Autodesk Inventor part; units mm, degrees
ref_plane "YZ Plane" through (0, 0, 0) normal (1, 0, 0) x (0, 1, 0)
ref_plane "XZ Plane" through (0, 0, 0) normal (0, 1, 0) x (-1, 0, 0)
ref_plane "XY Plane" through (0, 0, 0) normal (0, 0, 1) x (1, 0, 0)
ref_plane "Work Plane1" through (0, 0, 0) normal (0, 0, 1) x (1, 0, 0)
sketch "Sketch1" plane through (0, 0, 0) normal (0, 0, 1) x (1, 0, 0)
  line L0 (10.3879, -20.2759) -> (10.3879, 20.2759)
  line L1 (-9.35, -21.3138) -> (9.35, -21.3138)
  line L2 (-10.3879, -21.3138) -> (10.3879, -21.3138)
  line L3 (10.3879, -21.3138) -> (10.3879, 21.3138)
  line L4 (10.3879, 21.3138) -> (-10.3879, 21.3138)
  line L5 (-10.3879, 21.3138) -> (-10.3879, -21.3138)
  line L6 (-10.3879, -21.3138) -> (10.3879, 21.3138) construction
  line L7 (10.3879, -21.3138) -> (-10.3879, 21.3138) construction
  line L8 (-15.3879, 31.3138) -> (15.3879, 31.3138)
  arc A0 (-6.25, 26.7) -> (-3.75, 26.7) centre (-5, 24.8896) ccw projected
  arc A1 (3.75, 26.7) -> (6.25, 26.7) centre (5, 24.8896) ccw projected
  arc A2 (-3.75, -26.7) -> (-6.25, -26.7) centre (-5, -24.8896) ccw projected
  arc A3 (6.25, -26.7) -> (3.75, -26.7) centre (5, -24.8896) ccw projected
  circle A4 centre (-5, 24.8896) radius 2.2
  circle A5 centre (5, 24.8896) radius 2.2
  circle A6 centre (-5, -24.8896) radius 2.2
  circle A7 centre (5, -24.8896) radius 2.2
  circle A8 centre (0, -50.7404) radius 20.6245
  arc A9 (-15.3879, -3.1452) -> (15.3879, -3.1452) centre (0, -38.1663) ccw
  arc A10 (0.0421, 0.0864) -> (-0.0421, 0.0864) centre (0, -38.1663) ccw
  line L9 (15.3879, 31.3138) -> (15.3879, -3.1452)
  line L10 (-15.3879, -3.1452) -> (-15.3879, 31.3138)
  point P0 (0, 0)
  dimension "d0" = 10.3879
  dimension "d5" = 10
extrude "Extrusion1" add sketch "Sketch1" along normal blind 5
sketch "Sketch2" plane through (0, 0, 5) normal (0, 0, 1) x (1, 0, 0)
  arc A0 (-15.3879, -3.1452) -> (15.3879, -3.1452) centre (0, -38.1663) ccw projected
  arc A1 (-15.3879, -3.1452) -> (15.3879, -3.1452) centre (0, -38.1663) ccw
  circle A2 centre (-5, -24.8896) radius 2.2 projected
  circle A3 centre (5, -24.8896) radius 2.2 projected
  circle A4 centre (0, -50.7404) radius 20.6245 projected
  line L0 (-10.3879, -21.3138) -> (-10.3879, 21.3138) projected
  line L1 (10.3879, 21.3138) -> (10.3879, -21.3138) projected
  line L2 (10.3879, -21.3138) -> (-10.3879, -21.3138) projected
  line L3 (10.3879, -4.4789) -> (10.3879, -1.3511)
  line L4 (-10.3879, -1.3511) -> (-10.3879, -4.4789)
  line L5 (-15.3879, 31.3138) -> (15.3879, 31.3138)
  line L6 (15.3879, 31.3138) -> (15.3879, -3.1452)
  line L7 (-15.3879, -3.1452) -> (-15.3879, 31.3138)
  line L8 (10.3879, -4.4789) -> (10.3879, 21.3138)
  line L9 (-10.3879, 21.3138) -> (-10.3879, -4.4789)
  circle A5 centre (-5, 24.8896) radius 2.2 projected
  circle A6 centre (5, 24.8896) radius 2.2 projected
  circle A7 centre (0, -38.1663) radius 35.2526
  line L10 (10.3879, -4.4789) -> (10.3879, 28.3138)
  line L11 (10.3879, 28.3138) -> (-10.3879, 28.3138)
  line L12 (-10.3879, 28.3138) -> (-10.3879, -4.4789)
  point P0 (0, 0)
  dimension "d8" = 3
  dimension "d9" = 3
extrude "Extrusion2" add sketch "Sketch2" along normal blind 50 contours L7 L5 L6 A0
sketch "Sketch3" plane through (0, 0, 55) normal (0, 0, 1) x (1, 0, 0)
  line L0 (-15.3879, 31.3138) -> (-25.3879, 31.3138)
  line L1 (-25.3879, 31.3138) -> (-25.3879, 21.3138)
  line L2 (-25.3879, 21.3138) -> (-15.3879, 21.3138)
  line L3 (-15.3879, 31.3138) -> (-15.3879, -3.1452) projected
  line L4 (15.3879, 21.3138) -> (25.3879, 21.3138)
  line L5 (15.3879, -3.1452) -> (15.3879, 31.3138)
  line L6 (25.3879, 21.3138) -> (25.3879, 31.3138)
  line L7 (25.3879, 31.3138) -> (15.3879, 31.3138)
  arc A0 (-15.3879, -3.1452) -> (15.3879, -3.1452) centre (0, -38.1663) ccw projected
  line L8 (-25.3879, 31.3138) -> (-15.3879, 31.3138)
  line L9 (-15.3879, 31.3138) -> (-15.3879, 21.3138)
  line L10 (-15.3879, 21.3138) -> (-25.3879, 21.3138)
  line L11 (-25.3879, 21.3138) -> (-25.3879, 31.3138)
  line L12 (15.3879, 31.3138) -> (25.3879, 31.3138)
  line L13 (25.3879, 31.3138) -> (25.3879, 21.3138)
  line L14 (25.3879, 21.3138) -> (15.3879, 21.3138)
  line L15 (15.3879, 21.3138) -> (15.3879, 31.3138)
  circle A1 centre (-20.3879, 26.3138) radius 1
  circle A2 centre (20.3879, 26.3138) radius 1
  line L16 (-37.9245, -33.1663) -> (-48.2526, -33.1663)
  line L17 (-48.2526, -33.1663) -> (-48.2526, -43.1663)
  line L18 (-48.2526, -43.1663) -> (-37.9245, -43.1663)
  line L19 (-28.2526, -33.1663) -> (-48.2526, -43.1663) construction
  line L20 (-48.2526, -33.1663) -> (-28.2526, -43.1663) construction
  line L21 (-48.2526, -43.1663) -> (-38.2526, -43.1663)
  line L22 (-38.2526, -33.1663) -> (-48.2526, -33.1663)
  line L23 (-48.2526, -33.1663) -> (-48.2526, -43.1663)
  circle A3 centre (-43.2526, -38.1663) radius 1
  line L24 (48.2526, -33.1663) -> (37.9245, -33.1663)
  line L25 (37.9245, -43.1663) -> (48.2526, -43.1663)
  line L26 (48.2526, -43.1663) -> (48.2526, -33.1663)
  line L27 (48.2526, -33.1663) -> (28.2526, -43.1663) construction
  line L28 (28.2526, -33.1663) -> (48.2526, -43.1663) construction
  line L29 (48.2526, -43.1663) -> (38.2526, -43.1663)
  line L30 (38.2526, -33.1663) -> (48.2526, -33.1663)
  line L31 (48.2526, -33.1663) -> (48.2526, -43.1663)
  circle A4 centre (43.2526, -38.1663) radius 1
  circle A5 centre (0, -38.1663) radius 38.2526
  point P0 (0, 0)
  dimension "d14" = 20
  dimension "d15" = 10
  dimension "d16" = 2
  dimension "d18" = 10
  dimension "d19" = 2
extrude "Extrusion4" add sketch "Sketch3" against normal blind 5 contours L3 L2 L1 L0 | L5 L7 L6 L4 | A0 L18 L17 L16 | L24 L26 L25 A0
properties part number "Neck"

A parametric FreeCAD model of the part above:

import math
import FreeCAD as App
import Part
import Sketcher


def add_polygon(sketch, points):
    """Adds a closed chain of lines whose ends are joined by coincident constraints."""
    first, n = sketch.GeometryCount, len(points)
    for a, b in zip(points, points[1:] + points[:1]):
        sketch.addGeometry(Part.LineSegment(App.Vector(*a, 0), App.Vector(*b, 0)), False)
    for i in range(n):
        sketch.addConstraint(Sketcher.Constraint("Coincident", first + i, 2, first + (i + 1) % n, 1))

doc = App.newDocument("Part")
body = doc.addObject("PartDesign::Body", "Body")

# Sketch on XY plane
sketch1 = body.newObject("Sketcher::SketchObject", "Sketch")
sketch1.AttachmentSupport = (doc.getObject("XY_Plane"), [""])
sketch1.MapMode = "FlatFace"
sketch1.addGeometry(Part.LineSegment(App.Vector(15.4, 31.3, 0), App.Vector(-15.4, 31.3, 0)), False)  # 0
sketch1.addGeometry(Part.LineSegment(App.Vector(-15.4, 31.3, 0), App.Vector(-15.4, -3.1, 0)), False)  # 1
sketch1.addGeometry(Part.ArcOfCircle(Part.Circle(App.Vector(0, -38.2, 0), App.Vector(0, 0, 1), 38.3), math.radians(114), math.radians(426)), False)  # 2
sketch1.addGeometry(Part.LineSegment(App.Vector(15.4, -3.1, 0), App.Vector(15.4, 31.3, 0)), False)  # 3
sketch1.addGeometry(Part.Circle(App.Vector(-5, -24.9, 0), App.Vector(0, 0, 1), 2.2), False)  # 4
sketch1.addGeometry(Part.Circle(App.Vector(0, -50.7, 0), App.Vector(0, 0, 1), 20.6), False)  # 5
sketch1.addGeometry(Part.Circle(App.Vector(5, -24.9, 0), App.Vector(0, 0, 1), 2.2), False)  # 6
sketch1.addGeometry(Part.Circle(App.Vector(-5, 24.9, 0), App.Vector(0, 0, 1), 2.2), False)  # 7
add_polygon(sketch1, [(10.4, 21.3), (10.4, -21.3), (-10.4, -21.3), (-10.4, 21.3)])  # lines 8-11
sketch1.addGeometry(Part.Circle(App.Vector(5, 24.9, 0), App.Vector(0, 0, 1), 2.2), False)  # 12
sketch1.addConstraint([
    Sketcher.Constraint("Coincident", 0, 2, 1, 1),
    Sketcher.Constraint("Coincident", 1, 2, 2, 1),
    Sketcher.Constraint("Coincident", 2, 2, 3, 1),
    Sketcher.Constraint("Coincident", 3, 2, 0, 1),
    Sketcher.Constraint("Horizontal", 0),
    Sketcher.Constraint("Vertical", 1),
    Sketcher.Constraint("Vertical", 3),
    Sketcher.Constraint("Vertical", 8),
    Sketcher.Constraint("Horizontal", 9),
    Sketcher.Constraint("Vertical", 10),
    Sketcher.Constraint("Horizontal", 11),
    Sketcher.Constraint("Equal", 4, 6),
    Sketcher.Constraint("Equal", 6, 7),
    Sketcher.Constraint("Equal", 7, 12),
    Sketcher.Constraint("Symmetric", 6, 3, 7, 3, -1, 1),
    Sketcher.Constraint("Symmetric", 4, 3, 12, 3, -1, 1),
    Sketcher.Constraint("Symmetric", 8, 2, 10, 2, -1, 1),
    Sketcher.Constraint("Symmetric", 4, 3, 6, 3, -2),
    Sketcher.Constraint("Symmetric", 1, 2, 2, 2, -2),
    Sketcher.Constraint("PointOnObject", 5, 3, -2),
    Sketcher.Constraint("DistanceX", 4, 3, 6, 3, 10.0),
    Sketcher.Constraint("DistanceY", 10, 2, 0, 2, 10.0),
    Sketcher.Constraint("Diameter", 4, 4.4),
    Sketcher.Constraint("Diameter", 5, 41.249),
    Sketcher.Constraint("DistanceX", -1, 1, 8, 2, 10.388),
    Sketcher.Constraint("DistanceX", 0, 2, 7, 3, 10.388),
    Sketcher.Constraint("Radius", 2, 38.2526),
    Sketcher.Constraint("DistanceY", 1, 2, 1, 1, 34.459),
    Sketcher.Constraint("DistanceY", 5, 3, 7, 3, 75.63),
    Sketcher.Constraint("DistanceY", 8, 2, 8, 1, 42.6276),
    Sketcher.Constraint("DistanceY", 5, 3, 2, 3, 12.574),
])
pad1 = body.newObject("PartDesign::Pad", "Pad")
pad1.Profile = sketch1
pad1.Length = 5

# Sketch on XY plane
sketch2 = body.newObject("Sketcher::SketchObject", "Sketch001")
sketch2.AttachmentSupport = (doc.getObject("XY_Plane"), [""])
sketch2.MapMode = "FlatFace"
sketch2.AttachmentOffset = App.Placement(App.Vector(0, 0, 5), App.Rotation())
sketch2.addGeometry([
    Part.LineSegment(App.Vector(-15, 31, 0), App.Vector(-15, -3, 0)),  # 0
    Part.ArcOfCircle(Part.Circle(App.Vector(0, -38, 0), App.Vector(0, 0, 1), 38), math.radians(114), math.radians(426)),  # 1
    Part.LineSegment(App.Vector(15, -3, 0), App.Vector(15, 31, 0)),  # 2
    Part.LineSegment(App.Vector(15, 31, 0), App.Vector(-15, 31, 0)),  # 3
    Part.ArcOfCircle(Part.Circle(App.Vector(0, -38, 0), App.Vector(0, 0, 1), 35), math.radians(107), math.radians(433)),  # 4
    Part.LineSegment(App.Vector(-10, -4, 0), App.Vector(-10, 28, 0)),  # 5
    Part.LineSegment(App.Vector(-10, 28, 0), App.Vector(10, 28, 0)),  # 6
    Part.LineSegment(App.Vector(10, 28, 0), App.Vector(10, -4, 0)),  # 7
], False)
sketch2.addConstraint([
    Sketcher.Constraint("Coincident", 0, 2, 1, 1),
    Sketcher.Constraint("Coincident", 1, 2, 2, 1),
    Sketcher.Constraint("Coincident", 2, 2, 3, 1),
    Sketcher.Constraint("Coincident", 3, 2, 0, 1),
    Sketcher.Constraint("Coincident", 4, 1, 5, 1),
    Sketcher.Constraint("Coincident", 5, 2, 6, 1),
    Sketcher.Constraint("Coincident", 6, 2, 7, 1),
    Sketcher.Constraint("Coincident", 7, 2, 4, 2),
    Sketcher.Constraint("Vertical", 0),
    Sketcher.Constraint("Vertical", 2),
    Sketcher.Constraint("Horizontal", 3),
    Sketcher.Constraint("Vertical", 5),
    Sketcher.Constraint("Horizontal", 6),
    Sketcher.Constraint("Vertical", 7),
    Sketcher.Constraint("Coincident", 4, 3, 1, 3),
    Sketcher.Constraint("Symmetric", 0, 2, 1, 2, -2),
    Sketcher.Constraint("Horizontal", 4, 1, 7, 2),
    Sketcher.Constraint("DistanceY", 5, 2, 3, 2, 3.0),
    Sketcher.Constraint("DistanceX", 0, 2, 4, 1, 5.0),
    Sketcher.Constraint("Radius", 1, 38.2526),
    Sketcher.Constraint("Radius", 4, 35.2526),
    Sketcher.Constraint("DistanceY", 0, 2, 0, 1, 34.459),
    Sketcher.Constraint("DistanceY", 1, 3, 2, 2, 69.48),
    Sketcher.Constraint("DistanceY", 4, 1, -1, 1, 4.479),
])
pad2 = body.newObject("PartDesign::Pad", "Pad001")
pad2.Profile = sketch2
pad2.Length = 50

# Sketch on XY plane
sketch3 = body.newObject("Sketcher::SketchObject", "Sketch002")
sketch3.AttachmentSupport = (doc.getObject("XY_Plane"), [""])
sketch3.MapMode = "FlatFace"
sketch3.AttachmentOffset = App.Placement(App.Vector(0, 0, 55), App.Rotation())
add_polygon(sketch3, [(-15.4, 21.3), (-15.4, 31.3), (-25.4, 31.3), (-25.4, 21.3)])  # lines 0-3
sketch3.addGeometry(Part.Circle(App.Vector(-20.4, 26.3, 0), App.Vector(0, 0, 1), 1), False)  # 4
add_polygon(sketch3, [(15.4, 31.3), (15.4, 21.3), (25.4, 21.3), (25.4, 31.3)])  # lines 5-8
sketch3.addGeometry(Part.Circle(App.Vector(20.4, 26.3, 0), App.Vector(0, 0, 1), 1), False)  # 9
sketch3.addGeometry(Part.ArcOfCircle(Part.Circle(App.Vector(0, -38.2, 0), App.Vector(0, 0, 1), 38.3), math.radians(172.49), math.radians(187.51)), False)  # 10
sketch3.addGeometry(Part.LineSegment(App.Vector(-37.9, -33.2, 0), App.Vector(-48.3, -33.2, 0)), False)  # 11
sketch3.addGeometry(Part.LineSegment(App.Vector(-48.3, -33.2, 0), App.Vector(-48.3, -43.2, 0)), False)  # 12
sketch3.addGeometry(Part.LineSegment(App.Vector(-48.3, -43.2, 0), App.Vector(-37.9, -43.2, 0)), False)  # 13
sketch3.addGeometry(Part.Circle(App.Vector(-43.3, -38.2, 0), App.Vector(0, 0, 1), 1), False)  # 14
sketch3.addGeometry(Part.LineSegment(App.Vector(48.3, -33.2, 0), App.Vector(37.9, -33.2, 0)), False)  # 15
sketch3.addGeometry(Part.ArcOfCircle(Part.Circle(App.Vector(0, -38.2, 0), App.Vector(0, 0, 1), 38.3), math.radians(-7.51), math.radians(7.51)), False)  # 16
sketch3.addGeometry(Part.LineSegment(App.Vector(37.9, -43.2, 0), App.Vector(48.3, -43.2, 0)), False)  # 17
sketch3.addGeometry(Part.LineSegment(App.Vector(48.3, -43.2, 0), App.Vector(48.3, -33.2, 0)), False)  # 18
sketch3.addGeometry(Part.Circle(App.Vector(43.3, -38.2, 0), App.Vector(0, 0, 1), 1), False)  # 19
sketch3.addConstraint([
    Sketcher.Constraint("Coincident", 10, 1, 11, 1),
    Sketcher.Constraint("Coincident", 11, 2, 12, 1),
    Sketcher.Constraint("Coincident", 12, 2, 13, 1),
    Sketcher.Constraint("Coincident", 13, 2, 10, 2),
    Sketcher.Constraint("Coincident", 15, 2, 16, 2),
    Sketcher.Constraint("Coincident", 16, 1, 17, 1),
    Sketcher.Constraint("Coincident", 17, 2, 18, 1),
    Sketcher.Constraint("Coincident", 18, 2, 15, 1),
    Sketcher.Constraint("Vertical", 0),
    Sketcher.Constraint("Horizontal", 1),
    Sketcher.Constraint("Vertical", 2),
    Sketcher.Constraint("Horizontal", 3),
    Sketcher.Constraint("Vertical", 5),
    Sketcher.Constraint("Horizontal", 6),
    Sketcher.Constraint("Vertical", 7),
    Sketcher.Constraint("Horizontal", 8),
    Sketcher.Constraint("Horizontal", 11),
    Sketcher.Constraint("Vertical", 12),
    Sketcher.Constraint("Horizontal", 13),
    Sketcher.Constraint("Horizontal", 15),
    Sketcher.Constraint("Horizontal", 17),
    Sketcher.Constraint("Vertical", 18),
    Sketcher.Constraint("Coincident", 16, 3, 10, 3),
    Sketcher.Constraint("Equal", 4, 9),
    Sketcher.Constraint("Equal", 9, 14),
    Sketcher.Constraint("Equal", 10, 16),
    Sketcher.Constraint("Equal", 14, 19),
    Sketcher.Constraint("Symmetric", 4, 3, 9, 3, -2),
    Sketcher.Constraint("Symmetric", 14, 3, 19, 3, -2),
    Sketcher.Constraint("Symmetric", 3, 2, 5, 2, -2),
    Sketcher.Constraint("Symmetric", 1, 2, 7, 2, -2),
    Sketcher.Constraint("Symmetric", 10, 1, 15, 2, -2),
    Sketcher.Constraint("Symmetric", 12, 2, 17, 2, -2),
    Sketcher.Constraint("Horizontal", 10, 3, 14, 3),
    Sketcher.Constraint("Vertical", 10, 1, 13, 2),
    Sketcher.Constraint("Equal", 8, 0),
    Sketcher.Constraint("Equal", 7, 12),
    Sketcher.Constraint("Diameter", 4, 2.0),
    Sketcher.Constraint("DistanceX", 1, 2, 1, 1, 10.0),
    Sketcher.Constraint("DistanceX", 4, 3, 0, 2, 5.0),
    Sketcher.Constraint("DistanceY", 4, 3, 0, 2, 5.0),
    Sketcher.Constraint("DistanceX", 11, 2, 14, 3, 5.0),
    Sketcher.Constraint("Radius", 10, 38.2526),
    Sketcher.Constraint("DistanceX", 11, 2, 11, 1, 10.328),
    Sketcher.Constraint("DistanceY", 10, 3, 4, 3, 64.48),
    Sketcher.Constraint("DistanceX", 4, 3, -1, 1, 20.388),
    Sketcher.Constraint("DistanceY", -1, 1, 4, 3, 26.3138),
])
pad3 = body.newObject("PartDesign::Pad", "Pad002")
pad3.Profile = sketch3
pad3.Length = 5
pad3.Reversed = True

doc.recompute()
